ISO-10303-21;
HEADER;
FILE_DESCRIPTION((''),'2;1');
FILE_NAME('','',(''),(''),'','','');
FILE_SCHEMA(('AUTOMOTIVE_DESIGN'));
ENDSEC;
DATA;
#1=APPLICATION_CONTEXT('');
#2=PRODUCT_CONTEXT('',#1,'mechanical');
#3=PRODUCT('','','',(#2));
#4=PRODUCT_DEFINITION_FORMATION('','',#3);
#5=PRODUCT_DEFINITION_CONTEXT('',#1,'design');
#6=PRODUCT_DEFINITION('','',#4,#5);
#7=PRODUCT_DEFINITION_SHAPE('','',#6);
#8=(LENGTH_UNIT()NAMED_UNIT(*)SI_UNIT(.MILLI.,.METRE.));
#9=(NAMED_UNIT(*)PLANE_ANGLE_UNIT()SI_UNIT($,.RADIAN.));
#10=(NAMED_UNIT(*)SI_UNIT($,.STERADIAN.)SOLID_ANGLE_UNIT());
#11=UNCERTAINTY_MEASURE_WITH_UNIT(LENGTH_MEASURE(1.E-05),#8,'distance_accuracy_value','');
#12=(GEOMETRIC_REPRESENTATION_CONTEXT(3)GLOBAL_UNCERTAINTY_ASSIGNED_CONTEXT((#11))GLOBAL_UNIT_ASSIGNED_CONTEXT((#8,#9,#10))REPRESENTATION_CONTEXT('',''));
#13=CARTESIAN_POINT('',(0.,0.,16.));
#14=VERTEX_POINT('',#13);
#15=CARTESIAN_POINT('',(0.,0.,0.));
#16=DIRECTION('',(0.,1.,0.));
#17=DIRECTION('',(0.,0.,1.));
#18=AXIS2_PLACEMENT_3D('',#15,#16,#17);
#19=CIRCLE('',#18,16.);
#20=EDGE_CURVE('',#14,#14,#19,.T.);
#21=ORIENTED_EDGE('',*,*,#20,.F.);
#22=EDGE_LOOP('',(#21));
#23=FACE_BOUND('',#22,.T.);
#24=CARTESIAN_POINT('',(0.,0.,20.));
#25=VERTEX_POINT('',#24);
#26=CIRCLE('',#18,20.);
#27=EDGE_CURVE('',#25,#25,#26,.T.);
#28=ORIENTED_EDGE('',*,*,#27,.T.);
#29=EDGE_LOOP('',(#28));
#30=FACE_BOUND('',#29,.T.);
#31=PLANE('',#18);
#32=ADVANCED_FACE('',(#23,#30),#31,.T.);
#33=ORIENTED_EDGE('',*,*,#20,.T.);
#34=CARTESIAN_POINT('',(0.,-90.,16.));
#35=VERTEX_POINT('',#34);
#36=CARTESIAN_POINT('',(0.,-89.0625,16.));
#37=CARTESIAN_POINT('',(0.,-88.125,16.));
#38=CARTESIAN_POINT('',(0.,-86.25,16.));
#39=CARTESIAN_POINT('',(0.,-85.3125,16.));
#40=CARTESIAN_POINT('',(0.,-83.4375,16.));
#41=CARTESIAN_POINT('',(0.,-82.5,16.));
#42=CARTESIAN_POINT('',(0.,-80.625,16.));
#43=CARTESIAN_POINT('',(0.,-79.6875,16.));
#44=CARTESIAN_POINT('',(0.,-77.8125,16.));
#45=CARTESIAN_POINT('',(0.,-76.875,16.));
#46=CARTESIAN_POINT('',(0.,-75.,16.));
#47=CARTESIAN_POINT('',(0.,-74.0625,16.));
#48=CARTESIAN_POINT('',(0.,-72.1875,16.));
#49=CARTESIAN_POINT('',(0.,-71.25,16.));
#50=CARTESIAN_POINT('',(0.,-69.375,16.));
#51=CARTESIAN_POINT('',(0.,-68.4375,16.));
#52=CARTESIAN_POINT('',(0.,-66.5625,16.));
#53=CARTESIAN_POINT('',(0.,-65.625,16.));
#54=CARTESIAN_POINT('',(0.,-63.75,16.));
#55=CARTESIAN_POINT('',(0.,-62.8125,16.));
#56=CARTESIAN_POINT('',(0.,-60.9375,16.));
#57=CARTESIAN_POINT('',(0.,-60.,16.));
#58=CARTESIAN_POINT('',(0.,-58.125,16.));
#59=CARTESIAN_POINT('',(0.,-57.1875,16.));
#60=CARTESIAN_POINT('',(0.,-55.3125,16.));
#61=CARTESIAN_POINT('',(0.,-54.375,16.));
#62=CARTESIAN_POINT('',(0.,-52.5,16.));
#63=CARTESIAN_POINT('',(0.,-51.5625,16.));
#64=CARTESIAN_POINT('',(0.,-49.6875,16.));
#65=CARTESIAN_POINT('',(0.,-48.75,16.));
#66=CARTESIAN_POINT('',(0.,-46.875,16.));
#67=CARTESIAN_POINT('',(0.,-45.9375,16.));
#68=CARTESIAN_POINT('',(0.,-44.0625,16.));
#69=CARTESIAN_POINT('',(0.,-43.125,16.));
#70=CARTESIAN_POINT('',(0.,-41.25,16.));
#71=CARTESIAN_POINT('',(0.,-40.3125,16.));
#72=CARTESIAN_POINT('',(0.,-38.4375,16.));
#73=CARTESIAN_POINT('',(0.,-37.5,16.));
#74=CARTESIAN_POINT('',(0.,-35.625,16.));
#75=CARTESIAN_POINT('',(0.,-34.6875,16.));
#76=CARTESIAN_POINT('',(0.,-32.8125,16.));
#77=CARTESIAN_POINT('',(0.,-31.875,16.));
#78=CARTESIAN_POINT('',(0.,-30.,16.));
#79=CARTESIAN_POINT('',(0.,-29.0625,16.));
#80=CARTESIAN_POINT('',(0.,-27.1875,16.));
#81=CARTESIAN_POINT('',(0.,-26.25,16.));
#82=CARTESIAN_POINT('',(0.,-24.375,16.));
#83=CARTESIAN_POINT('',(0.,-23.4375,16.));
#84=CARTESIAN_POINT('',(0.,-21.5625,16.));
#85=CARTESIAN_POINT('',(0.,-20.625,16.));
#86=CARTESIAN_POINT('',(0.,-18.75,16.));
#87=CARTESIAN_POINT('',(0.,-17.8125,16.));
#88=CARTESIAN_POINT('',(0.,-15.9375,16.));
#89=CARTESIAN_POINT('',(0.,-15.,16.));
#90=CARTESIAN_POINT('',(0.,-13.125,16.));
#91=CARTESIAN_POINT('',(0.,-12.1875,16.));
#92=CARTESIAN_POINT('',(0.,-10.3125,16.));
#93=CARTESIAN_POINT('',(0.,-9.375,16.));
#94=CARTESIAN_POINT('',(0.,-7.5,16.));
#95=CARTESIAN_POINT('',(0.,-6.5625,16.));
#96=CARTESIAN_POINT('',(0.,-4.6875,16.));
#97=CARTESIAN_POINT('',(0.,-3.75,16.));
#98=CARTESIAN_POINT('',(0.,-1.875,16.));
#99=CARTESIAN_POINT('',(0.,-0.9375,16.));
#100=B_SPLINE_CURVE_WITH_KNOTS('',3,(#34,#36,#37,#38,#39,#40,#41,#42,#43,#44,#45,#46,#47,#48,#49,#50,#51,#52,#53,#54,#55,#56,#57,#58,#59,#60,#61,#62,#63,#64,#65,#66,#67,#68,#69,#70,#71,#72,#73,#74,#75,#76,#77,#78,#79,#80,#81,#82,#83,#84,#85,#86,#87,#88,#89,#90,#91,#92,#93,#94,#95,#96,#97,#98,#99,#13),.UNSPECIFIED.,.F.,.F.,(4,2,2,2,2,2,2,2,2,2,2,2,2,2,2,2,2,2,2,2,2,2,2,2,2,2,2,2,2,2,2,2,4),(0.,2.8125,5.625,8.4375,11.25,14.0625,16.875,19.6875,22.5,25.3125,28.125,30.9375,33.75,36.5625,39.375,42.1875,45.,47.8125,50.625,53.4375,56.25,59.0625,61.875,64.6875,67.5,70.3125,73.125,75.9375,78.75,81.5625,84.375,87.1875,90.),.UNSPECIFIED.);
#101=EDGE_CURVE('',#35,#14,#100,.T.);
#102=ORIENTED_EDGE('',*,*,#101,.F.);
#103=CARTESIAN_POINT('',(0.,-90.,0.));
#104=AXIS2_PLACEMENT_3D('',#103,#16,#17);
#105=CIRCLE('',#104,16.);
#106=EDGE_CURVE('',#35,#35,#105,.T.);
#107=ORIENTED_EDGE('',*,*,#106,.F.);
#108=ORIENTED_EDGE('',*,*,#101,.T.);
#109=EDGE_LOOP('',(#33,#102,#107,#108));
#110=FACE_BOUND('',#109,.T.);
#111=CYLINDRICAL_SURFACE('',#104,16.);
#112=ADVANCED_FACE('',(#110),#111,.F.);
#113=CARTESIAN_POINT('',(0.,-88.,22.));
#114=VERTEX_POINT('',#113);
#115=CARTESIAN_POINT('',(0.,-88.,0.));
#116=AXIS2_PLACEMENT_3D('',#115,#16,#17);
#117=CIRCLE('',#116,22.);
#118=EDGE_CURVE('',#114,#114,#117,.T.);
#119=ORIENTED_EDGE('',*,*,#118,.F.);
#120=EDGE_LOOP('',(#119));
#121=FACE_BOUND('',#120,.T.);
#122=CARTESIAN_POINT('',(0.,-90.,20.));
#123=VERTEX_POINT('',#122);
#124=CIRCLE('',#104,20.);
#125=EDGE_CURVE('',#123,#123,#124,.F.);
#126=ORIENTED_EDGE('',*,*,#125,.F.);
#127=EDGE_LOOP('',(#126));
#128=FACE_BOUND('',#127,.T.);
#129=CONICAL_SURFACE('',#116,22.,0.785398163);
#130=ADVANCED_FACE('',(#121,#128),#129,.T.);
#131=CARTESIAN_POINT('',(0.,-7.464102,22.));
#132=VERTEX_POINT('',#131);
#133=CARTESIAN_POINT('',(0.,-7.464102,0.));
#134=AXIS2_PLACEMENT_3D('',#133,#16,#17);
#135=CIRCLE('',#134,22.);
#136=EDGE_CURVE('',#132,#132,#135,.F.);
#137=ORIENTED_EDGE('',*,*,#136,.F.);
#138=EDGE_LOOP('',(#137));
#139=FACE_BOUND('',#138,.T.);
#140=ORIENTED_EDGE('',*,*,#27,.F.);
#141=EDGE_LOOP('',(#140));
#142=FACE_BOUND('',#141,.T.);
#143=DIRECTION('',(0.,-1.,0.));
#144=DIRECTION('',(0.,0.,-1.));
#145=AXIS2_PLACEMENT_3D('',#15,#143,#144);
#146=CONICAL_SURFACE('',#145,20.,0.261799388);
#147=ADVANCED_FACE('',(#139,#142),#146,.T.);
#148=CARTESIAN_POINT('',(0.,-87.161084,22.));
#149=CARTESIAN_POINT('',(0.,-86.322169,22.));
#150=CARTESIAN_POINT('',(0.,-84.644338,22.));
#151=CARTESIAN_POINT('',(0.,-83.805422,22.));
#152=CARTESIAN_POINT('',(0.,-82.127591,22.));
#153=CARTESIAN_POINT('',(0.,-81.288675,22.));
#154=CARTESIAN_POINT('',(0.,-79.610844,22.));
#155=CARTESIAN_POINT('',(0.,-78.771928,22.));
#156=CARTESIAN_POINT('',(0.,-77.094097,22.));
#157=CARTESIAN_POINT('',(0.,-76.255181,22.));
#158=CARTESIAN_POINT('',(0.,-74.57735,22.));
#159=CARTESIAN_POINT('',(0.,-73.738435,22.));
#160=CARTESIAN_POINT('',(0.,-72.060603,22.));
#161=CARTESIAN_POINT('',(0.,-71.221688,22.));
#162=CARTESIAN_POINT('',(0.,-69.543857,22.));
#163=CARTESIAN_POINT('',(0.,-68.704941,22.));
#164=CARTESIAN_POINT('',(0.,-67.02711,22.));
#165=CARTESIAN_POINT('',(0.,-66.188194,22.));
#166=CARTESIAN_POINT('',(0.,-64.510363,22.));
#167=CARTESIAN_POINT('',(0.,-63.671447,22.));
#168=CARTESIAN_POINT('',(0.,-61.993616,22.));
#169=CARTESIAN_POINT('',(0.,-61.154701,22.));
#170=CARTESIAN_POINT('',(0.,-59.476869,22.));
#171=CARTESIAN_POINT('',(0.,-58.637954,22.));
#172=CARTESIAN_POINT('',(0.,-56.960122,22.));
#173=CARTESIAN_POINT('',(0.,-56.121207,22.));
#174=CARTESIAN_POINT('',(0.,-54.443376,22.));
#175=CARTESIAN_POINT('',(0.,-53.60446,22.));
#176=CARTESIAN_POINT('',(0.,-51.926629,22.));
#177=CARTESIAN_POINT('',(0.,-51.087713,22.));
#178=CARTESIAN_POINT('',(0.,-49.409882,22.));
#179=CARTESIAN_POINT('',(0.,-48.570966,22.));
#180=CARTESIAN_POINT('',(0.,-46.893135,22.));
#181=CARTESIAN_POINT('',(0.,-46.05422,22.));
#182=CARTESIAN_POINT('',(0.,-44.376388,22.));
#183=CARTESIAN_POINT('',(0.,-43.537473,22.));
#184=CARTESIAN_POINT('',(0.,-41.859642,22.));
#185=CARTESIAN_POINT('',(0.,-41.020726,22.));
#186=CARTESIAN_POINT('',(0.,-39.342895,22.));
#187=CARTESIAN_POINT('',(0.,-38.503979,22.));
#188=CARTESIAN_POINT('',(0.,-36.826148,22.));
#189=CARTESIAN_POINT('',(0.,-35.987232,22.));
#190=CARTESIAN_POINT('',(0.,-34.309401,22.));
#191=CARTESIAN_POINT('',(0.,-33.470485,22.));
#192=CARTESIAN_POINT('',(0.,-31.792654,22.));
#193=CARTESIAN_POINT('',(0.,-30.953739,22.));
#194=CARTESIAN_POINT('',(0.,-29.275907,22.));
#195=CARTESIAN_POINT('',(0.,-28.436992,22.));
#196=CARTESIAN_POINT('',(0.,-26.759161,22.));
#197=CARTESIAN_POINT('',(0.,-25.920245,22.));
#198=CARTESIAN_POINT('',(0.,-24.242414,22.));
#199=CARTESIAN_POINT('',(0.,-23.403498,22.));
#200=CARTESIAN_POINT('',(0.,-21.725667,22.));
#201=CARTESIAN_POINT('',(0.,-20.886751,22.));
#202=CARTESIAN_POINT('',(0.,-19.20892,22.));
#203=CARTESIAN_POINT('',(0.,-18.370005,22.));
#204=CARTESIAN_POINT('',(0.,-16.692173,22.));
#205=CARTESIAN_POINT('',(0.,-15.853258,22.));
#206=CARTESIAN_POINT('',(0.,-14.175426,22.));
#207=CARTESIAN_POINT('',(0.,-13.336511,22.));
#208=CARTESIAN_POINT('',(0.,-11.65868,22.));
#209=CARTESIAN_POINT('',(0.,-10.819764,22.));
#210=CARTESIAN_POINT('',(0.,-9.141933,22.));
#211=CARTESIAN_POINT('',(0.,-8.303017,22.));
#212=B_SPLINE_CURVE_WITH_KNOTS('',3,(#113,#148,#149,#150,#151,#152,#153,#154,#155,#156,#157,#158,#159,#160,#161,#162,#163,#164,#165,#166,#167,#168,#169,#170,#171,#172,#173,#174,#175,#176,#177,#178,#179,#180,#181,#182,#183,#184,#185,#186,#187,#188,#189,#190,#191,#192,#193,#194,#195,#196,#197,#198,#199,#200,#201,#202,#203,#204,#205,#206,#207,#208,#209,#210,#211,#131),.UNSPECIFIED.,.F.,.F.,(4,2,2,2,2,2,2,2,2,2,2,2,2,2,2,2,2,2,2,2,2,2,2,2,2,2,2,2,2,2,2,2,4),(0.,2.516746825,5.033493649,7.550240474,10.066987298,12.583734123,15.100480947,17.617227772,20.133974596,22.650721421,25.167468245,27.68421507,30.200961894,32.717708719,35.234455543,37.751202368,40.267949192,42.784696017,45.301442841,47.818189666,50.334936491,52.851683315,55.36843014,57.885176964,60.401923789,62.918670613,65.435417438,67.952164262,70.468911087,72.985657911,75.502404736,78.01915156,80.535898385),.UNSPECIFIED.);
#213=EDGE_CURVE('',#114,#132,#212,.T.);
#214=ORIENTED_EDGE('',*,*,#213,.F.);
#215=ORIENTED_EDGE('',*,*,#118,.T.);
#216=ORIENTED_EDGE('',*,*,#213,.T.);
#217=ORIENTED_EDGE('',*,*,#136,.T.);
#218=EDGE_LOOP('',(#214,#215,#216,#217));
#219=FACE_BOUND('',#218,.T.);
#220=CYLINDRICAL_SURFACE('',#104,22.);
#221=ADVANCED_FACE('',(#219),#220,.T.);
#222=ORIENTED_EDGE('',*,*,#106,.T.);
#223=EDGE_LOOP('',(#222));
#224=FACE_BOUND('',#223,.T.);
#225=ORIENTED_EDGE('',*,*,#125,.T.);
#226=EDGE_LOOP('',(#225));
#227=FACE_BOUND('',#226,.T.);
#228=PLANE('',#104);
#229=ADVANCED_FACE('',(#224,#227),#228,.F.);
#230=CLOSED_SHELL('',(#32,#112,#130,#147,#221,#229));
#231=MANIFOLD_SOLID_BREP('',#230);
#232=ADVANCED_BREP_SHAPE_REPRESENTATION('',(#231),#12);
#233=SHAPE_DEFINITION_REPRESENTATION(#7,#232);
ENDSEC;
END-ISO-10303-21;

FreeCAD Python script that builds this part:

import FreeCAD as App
import Part
import Sketcher
from FreeCAD import Vector
Q = App.Units.Quantity


def edges_at(feature, points):
    """Names of the edges that pass closest to the given points."""
    edges = feature.Shape.Edges
    near = lambda p: min(range(len(edges)), key=lambda i: edges[i].distToShape(Part.Vertex(*p))[0])
    return sorted({f"Edge{near(p) + 1}" for p in points})

doc = App.newDocument("Part")
body = doc.addObject("PartDesign::Body", "Body")

sketch1 = doc.addObject("Sketcher::SketchObject", "Sketch")
body.addObject(sketch1)
sketch1.AttachmentSupport = (doc.XZ_Plane, [""])
sketch1.MapMode = "FlatFace"
sketch1.addGeometry(Part.Circle(Vector(0, 0, 0), Vector(0, 0, 1), 22), False)
sketch1.addGeometry(Part.Circle(Vector(0, 0, 0), Vector(0, 0, 1), 16), False)
sketch1.addConstraint(Sketcher.Constraint("Coincident", 0, 3, -1, 1))
sketch1.addConstraint(Sketcher.Constraint("Coincident", 1, 3, -1, 1))
sketch1.addConstraint(Sketcher.Constraint("Diameter", 0, Q("44 mm")))
sketch1.addConstraint(Sketcher.Constraint("Diameter", 1, Q("32 mm")))
pad1 = doc.addObject("PartDesign::Pad", "Pad")
body.addObject(pad1)
pad1.Profile = sketch1
pad1.Length = 90
doc.recompute()

chamfer = doc.addObject("PartDesign::Chamfer", "Chamfer")
body.addObject(chamfer)
chamfer.Base = (pad1, edges_at(pad1, [(0, 0, -22)]))
chamfer.ChamferType = "Two distances"
chamfer.Size = 2
chamfer.Size2 = 7.464102
chamfer.FlipDirection = True
doc.recompute()

chamfer2 = doc.addObject("PartDesign::Chamfer", "Chamfer001")
body.addObject(chamfer2)
chamfer2.Base = (chamfer, edges_at(chamfer, [(0, -90, -22)]))
chamfer2.Size = 2

doc.recompute()
